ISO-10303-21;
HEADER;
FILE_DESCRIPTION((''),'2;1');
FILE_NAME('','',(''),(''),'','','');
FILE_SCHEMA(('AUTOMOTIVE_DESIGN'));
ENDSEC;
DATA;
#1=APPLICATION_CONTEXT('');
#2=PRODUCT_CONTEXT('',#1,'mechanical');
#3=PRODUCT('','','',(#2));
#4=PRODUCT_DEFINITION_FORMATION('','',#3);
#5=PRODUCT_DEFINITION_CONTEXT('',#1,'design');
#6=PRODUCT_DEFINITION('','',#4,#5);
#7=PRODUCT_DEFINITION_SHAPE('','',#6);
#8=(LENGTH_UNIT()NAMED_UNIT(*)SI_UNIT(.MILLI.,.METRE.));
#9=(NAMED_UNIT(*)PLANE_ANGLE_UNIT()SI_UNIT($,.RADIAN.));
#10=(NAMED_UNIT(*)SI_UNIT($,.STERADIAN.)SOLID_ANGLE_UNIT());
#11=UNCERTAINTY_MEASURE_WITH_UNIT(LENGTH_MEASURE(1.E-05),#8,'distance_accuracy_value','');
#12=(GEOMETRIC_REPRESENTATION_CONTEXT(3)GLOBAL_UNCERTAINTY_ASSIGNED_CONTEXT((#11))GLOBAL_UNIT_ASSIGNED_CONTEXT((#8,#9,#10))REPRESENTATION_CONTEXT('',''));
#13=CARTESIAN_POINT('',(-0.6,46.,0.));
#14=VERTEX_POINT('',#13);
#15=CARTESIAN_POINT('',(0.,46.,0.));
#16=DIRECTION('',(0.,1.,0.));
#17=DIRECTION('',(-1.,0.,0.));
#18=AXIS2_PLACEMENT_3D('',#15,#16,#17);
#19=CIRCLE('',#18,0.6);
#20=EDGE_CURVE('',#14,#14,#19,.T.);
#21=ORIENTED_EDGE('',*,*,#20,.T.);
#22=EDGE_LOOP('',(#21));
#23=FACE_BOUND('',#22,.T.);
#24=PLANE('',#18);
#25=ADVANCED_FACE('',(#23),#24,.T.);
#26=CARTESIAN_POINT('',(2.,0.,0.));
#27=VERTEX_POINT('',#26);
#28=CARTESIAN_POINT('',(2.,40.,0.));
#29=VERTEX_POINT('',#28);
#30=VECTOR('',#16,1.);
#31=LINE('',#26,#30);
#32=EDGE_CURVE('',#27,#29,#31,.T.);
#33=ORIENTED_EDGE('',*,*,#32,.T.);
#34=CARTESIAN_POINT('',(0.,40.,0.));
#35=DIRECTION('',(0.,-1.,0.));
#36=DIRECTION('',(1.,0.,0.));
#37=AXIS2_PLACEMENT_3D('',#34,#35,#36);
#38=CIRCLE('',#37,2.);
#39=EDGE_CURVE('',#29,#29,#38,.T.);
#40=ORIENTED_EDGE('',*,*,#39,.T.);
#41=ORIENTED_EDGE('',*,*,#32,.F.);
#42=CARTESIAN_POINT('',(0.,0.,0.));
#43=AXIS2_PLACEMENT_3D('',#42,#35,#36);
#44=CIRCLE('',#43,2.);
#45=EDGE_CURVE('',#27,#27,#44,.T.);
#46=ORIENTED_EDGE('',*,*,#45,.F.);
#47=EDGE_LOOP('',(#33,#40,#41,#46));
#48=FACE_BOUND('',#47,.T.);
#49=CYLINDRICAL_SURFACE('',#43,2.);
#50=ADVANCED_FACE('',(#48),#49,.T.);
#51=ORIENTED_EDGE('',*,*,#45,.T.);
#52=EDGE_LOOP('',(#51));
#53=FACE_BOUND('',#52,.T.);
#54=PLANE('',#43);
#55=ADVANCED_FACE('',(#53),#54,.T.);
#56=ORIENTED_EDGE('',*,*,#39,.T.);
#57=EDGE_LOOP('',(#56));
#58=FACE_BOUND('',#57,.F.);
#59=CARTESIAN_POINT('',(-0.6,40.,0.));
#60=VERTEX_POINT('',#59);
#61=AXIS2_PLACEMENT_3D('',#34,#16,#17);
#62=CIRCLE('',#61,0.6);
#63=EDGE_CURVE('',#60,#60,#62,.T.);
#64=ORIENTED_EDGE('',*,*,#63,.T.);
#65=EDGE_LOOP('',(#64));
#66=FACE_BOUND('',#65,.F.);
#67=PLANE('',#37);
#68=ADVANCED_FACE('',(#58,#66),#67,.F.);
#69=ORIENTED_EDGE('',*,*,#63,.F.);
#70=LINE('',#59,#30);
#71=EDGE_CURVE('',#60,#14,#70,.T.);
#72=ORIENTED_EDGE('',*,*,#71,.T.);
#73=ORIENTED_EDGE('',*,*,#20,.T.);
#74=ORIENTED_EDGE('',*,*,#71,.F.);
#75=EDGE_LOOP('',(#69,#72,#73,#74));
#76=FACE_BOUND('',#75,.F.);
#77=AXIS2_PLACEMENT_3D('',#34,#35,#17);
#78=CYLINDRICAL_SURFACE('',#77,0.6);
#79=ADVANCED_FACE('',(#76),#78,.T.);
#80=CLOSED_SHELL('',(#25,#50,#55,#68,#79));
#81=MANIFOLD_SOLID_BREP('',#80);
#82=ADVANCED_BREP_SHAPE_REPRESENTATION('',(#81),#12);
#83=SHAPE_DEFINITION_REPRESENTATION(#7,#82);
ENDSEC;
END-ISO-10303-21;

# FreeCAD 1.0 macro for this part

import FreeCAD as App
import Part
import Sketcher

V = App.Vector
Q = App.Units.Quantity

doc = App.newDocument("Part")
params = doc.addObject("Spreadsheet::Sheet", "Params")
for row, (alias, value) in enumerate([
    ("sketch1_diameter", "4 mm"),
    ("pad1_length", "40 mm"),
    ("sketch2_diameter", "1.2 mm"),
    ("pad2_length", "6 mm"),
], start=1):
    params.set(f"A{row}", alias)
    params.set(f"B{row}", "=" + value)
    params.setAlias(f"B{row}", alias)

body = doc.addObject("PartDesign::Body", "Body")

# Sketch on XZ plane
sketch1 = body.newObject("Sketcher::SketchObject", "Sketch")
sketch1.AttachmentSupport = (doc.getObject("XZ_Plane"), [""])
sketch1.MapMode = "FlatFace"
sketch1.addGeometry(Part.Circle(V(0, 0, 0), V(0, 0, 1), 2), False)
sketch1.addConstraint([
    Sketcher.Constraint("Coincident", 0, 3, -1, 1),
    Sketcher.Constraint("Diameter", 0, Q("4 mm")),
])
sketch1.setExpression("Constraints[1]", "Params.sketch1_diameter")
pad1 = body.newObject("PartDesign::Pad", "Pad")
pad1.Profile = sketch1
pad1.setExpression("Length", "Params.pad1_length")
pad1.Reversed = True

# Sketch on XZ plane
sketch2 = body.newObject("Sketcher::SketchObject", "Sketch001")
sketch2.AttachmentSupport = (doc.getObject("XZ_Plane"), [""])
sketch2.MapMode = "FlatFace"
sketch2.AttachmentOffset = App.Placement(V(0, 0, -40), App.Rotation())
sketch2.addGeometry(Part.Circle(V(0, 0, 0), V(0, 0, 1), 0.6), False)
sketch2.addConstraint([
    Sketcher.Constraint("Coincident", 0, 3, -1, 1),
    Sketcher.Constraint("Diameter", 0, Q("1.2 mm")),
])
sketch2.setExpression("Constraints[1]", "Params.sketch2_diameter")
pad2 = body.newObject("PartDesign::Pad", "Pad001")
pad2.Profile = sketch2
pad2.setExpression("Length", "Params.pad2_length")
pad2.Reversed = True

doc.recompute()
